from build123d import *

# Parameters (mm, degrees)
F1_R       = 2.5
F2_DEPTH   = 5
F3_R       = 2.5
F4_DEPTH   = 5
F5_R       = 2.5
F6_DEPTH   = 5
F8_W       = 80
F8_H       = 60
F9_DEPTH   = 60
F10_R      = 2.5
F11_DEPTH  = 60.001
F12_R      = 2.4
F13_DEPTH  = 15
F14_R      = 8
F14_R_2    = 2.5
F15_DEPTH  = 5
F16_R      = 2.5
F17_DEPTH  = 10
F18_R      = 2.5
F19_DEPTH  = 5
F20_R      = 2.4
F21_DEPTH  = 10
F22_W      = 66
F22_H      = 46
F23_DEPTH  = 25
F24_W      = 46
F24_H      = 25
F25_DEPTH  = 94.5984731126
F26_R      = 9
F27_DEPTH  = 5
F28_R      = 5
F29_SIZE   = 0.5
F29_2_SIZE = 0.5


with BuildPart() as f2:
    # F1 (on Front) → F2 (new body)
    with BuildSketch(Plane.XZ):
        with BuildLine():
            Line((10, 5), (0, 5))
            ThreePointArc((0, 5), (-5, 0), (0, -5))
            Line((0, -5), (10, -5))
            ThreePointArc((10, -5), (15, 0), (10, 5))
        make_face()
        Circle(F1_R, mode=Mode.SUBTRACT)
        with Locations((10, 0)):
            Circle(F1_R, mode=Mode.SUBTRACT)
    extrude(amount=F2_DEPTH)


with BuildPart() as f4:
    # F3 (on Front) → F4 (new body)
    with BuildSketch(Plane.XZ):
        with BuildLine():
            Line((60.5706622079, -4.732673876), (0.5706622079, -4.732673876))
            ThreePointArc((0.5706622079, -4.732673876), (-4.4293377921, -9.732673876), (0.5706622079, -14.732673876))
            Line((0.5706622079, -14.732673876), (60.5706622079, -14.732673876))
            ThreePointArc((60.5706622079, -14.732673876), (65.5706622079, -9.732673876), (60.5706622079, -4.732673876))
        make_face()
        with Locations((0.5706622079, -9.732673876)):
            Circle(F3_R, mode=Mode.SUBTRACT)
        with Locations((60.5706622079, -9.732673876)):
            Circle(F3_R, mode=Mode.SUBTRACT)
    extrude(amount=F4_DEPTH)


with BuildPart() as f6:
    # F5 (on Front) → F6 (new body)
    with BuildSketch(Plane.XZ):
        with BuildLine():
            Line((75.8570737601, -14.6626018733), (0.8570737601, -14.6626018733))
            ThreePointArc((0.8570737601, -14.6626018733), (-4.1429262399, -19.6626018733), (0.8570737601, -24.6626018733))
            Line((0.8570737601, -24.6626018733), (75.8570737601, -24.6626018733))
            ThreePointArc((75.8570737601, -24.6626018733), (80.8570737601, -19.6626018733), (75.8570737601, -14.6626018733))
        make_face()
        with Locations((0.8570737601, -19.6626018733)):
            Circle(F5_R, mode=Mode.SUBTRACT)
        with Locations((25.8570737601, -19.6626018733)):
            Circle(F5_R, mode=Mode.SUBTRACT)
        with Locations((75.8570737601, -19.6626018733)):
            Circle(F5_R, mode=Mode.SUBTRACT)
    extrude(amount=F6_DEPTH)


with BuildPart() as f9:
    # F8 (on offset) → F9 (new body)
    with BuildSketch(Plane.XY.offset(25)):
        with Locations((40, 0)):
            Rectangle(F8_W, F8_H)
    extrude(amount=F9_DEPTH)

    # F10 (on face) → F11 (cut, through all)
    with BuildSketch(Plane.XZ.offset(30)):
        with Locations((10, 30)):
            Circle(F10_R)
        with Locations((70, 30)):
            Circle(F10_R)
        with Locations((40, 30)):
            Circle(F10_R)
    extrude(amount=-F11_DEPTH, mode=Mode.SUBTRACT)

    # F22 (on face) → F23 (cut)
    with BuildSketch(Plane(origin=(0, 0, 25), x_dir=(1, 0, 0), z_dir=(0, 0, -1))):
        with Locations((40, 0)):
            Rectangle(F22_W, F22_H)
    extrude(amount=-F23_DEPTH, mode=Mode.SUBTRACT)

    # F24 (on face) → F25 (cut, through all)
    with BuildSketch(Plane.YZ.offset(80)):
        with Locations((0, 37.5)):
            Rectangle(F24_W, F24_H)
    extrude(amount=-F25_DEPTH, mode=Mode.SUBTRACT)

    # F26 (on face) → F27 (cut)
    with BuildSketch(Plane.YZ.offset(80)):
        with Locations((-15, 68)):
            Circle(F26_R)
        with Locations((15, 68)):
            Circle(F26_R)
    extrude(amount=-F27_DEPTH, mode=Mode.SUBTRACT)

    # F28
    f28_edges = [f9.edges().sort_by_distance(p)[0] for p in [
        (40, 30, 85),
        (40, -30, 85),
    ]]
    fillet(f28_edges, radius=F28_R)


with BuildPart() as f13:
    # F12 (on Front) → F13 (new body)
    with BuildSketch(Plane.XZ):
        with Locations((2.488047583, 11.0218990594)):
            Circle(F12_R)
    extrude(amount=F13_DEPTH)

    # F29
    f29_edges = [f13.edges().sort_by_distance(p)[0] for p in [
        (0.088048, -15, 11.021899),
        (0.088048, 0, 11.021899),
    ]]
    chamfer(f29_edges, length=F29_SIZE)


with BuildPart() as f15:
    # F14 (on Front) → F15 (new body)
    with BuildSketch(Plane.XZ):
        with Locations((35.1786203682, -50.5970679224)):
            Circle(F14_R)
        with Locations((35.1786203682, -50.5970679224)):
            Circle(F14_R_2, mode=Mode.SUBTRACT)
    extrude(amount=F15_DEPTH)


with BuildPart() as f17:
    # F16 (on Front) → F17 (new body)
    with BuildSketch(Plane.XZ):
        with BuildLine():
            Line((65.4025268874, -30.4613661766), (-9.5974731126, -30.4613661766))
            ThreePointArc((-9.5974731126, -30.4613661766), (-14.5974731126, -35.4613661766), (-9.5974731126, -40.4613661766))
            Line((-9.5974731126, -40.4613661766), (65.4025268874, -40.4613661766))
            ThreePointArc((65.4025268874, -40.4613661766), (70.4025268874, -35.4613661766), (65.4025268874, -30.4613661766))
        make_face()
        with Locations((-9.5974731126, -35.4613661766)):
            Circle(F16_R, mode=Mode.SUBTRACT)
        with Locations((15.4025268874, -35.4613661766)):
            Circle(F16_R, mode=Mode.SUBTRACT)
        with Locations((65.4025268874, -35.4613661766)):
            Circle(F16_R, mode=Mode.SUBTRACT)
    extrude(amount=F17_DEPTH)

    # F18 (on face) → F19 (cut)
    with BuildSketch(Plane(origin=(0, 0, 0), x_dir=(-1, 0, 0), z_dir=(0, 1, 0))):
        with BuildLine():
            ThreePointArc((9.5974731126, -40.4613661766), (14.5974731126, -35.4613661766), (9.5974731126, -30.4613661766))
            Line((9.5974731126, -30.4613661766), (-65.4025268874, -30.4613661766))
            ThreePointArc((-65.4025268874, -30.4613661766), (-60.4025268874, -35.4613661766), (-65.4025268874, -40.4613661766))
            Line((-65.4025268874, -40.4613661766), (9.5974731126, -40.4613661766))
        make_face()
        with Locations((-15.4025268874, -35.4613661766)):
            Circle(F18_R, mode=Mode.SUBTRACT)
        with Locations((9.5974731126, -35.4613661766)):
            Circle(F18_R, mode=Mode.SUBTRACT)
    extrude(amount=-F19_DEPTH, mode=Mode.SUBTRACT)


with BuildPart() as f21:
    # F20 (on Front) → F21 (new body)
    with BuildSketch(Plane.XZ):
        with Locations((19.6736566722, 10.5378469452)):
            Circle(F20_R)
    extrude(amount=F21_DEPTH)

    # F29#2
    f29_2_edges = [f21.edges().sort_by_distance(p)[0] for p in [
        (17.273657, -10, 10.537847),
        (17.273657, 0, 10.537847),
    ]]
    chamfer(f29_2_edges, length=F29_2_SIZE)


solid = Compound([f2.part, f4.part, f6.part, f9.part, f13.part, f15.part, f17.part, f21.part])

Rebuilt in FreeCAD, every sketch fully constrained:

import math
import FreeCAD as App
import Part
import Sketcher
from FreeCAD import Vector
Q = App.Units.Quantity


def edges_at(feature, points):
    """Names of the edges that pass closest to the given points."""
    edges = feature.Shape.Edges
    near = lambda p: min(range(len(edges)), key=lambda i: edges[i].distToShape(Part.Vertex(*p))[0])
    return sorted({f"Edge{near(p) + 1}" for p in points})

doc = App.newDocument("Part")
body = doc.addObject("PartDesign::Body", "Body")

# Sketch on XZ plane
sketch1 = body.newObject("Sketcher::SketchObject", "Sketch")
sketch1.AttachmentSupport = (doc.getObject("XZ_Plane"), [""])
sketch1.MapMode = "FlatFace"
sketch1.addGeometry([
    Part.LineSegment(Vector(10, 5, 0), Vector(0, 5, 0)),  # 0
    Part.ArcOfCircle(Part.Circle(Vector(0, 0, 0), Vector(0, 0, 1), 5), math.radians(90), math.radians(270)),  # 1
    Part.LineSegment(Vector(0, -5, 0), Vector(10, -5, 0)),  # 2
    Part.ArcOfCircle(Part.Circle(Vector(10, 0, 0), Vector(0, 0, 1), 5), math.radians(-90), math.radians(90)),  # 3
    Part.Circle(Vector(0, 0, 0), Vector(0, 0, 1), 2.5),  # 4
    Part.Circle(Vector(10, 0, 0), Vector(0, 0, 1), 2.5),  # 5
], False)
sketch1.addConstraint([
    Sketcher.Constraint("Tangent", 0, 2, 1, 1),
    Sketcher.Constraint("Tangent", 1, 2, 2, 1),
    Sketcher.Constraint("Tangent", 2, 2, 3, 1),
    Sketcher.Constraint("Tangent", 3, 2, 0, 1),
    Sketcher.Constraint("Horizontal", 0),
    Sketcher.Constraint("Horizontal", 2),
    Sketcher.Constraint("Coincident", 1, 3, -1, 1),
    Sketcher.Constraint("Coincident", 4, 3, -1, 1),
    Sketcher.Constraint("Coincident", 5, 3, 3, 3),
    Sketcher.Constraint("Equal", 4, 5),
    Sketcher.Constraint("Diameter", 4, Q("5 mm")),
    Sketcher.Constraint("Radius", 1, Q("5 mm")),
    Sketcher.Constraint("DistanceX", 0, 2, 0, 1, Q("10 mm")),
])
pad1 = body.newObject("PartDesign::Pad", "Pad")
pad1.Profile = sketch1
pad1.Length = 5
body2 = doc.addObject("PartDesign::Body", "Body001")

# Sketch on XZ plane
sketch2 = body2.newObject("Sketcher::SketchObject", "Sketch001")
sketch2.AttachmentSupport = (doc.getObject("XZ_Plane001"), [""])
sketch2.MapMode = "FlatFace"
sketch2.addGeometry([
    Part.LineSegment(Vector(60.6, -4.7, 0), Vector(0.6, -4.7, 0)),  # 0
    Part.ArcOfCircle(Part.Circle(Vector(0.6, -9.7, 0), Vector(0, 0, 1), 5), math.radians(90), math.radians(270)),  # 1
    Part.LineSegment(Vector(0.6, -14.7, 0), Vector(60.6, -14.7, 0)),  # 2
    Part.ArcOfCircle(Part.Circle(Vector(60.6, -9.7, 0), Vector(0, 0, 1), 5), math.radians(-90), math.radians(90)),  # 3
    Part.Circle(Vector(0.6, -9.7, 0), Vector(0, 0, 1), 2.5),  # 4
    Part.Circle(Vector(60.6, -9.7, 0), Vector(0, 0, 1), 2.5),  # 5
], False)
sketch2.addConstraint([
    Sketcher.Constraint("Tangent", 0, 2, 1, 1),
    Sketcher.Constraint("Tangent", 1, 2, 2, 1),
    Sketcher.Constraint("Tangent", 2, 2, 3, 1),
    Sketcher.Constraint("Tangent", 3, 2, 0, 1),
    Sketcher.Constraint("Horizontal", 0),
    Sketcher.Constraint("Horizontal", 2),
    Sketcher.Constraint("Coincident", 4, 3, 1, 3),
    Sketcher.Constraint("Coincident", 5, 3, 3, 3),
    Sketcher.Constraint("Equal", 4, 5),
    Sketcher.Constraint("Diameter", 4, Q("5 mm")),
    Sketcher.Constraint("Radius", 1, Q("5 mm")),
    Sketcher.Constraint("DistanceX", 0, 2, 0, 1, Q("60 mm")),
    Sketcher.Constraint("DistanceX", -1, 1, 1, 3, Q("0.570662 mm")),
    Sketcher.Constraint("DistanceY", 1, 3, -1, 1, Q("9.732674 mm")),
])
pad2 = body2.newObject("PartDesign::Pad", "Pad001")
pad2.Profile = sketch2
pad2.Length = 5
body3 = doc.addObject("PartDesign::Body", "Body002")

# Sketch on XZ plane
sketch3 = body3.newObject("Sketcher::SketchObject", "Sketch002")
sketch3.AttachmentSupport = (doc.getObject("XZ_Plane002"), [""])
sketch3.MapMode = "FlatFace"
sketch3.addGeometry([
    Part.LineSegment(Vector(75.9, -14.7, 0), Vector(0.9, -14.7, 0)),  # 0
    Part.ArcOfCircle(Part.Circle(Vector(0.9, -19.7, 0), Vector(0, 0, 1), 5), math.radians(90), math.radians(270)),  # 1
    Part.LineSegment(Vector(0.9, -24.7, 0), Vector(75.9, -24.7, 0)),  # 2
    Part.ArcOfCircle(Part.Circle(Vector(75.9, -19.7, 0), Vector(0, 0, 1), 5), math.radians(-90), math.radians(90)),  # 3
    Part.Circle(Vector(0.9, -19.7, 0), Vector(0, 0, 1), 2.5),  # 4
    Part.Circle(Vector(25.9, -19.7, 0), Vector(0, 0, 1), 2.5),  # 5
    Part.Circle(Vector(75.9, -19.7, 0), Vector(0, 0, 1), 2.5),  # 6
], False)
sketch3.addConstraint([
    Sketcher.Constraint("Tangent", 0, 2, 1, 1),
    Sketcher.Constraint("Tangent", 1, 2, 2, 1),
    Sketcher.Constraint("Tangent", 2, 2, 3, 1),
    Sketcher.Constraint("Tangent", 3, 2, 0, 1),
    Sketcher.Constraint("Horizontal", 0),
    Sketcher.Constraint("Horizontal", 2),
    Sketcher.Constraint("Coincident", 4, 3, 1, 3),
    Sketcher.Constraint("Coincident", 6, 3, 3, 3),
    Sketcher.Constraint("Equal", 4, 5),
    Sketcher.Constraint("Equal", 5, 6),
    Sketcher.Constraint("Horizontal", 4, 3, 5, 3),
    Sketcher.Constraint("Diameter", 4, Q("5 mm")),
    Sketcher.Constraint("Radius", 1, Q("5 mm")),
    Sketcher.Constraint("DistanceX", 0, 2, 0, 1, Q("75 mm")),
    Sketcher.Constraint("DistanceX", 1, 3, 5, 3, Q("25 mm")),
    Sketcher.Constraint("DistanceY", 1, 3, -1, 1, Q("19.662602 mm")),
    Sketcher.Constraint("DistanceX", -1, 1, 1, 3, Q("0.857074 mm")),
])
pad3 = body3.newObject("PartDesign::Pad", "Pad002")
pad3.Profile = sketch3
pad3.Length = 5
body4 = doc.addObject("PartDesign::Body", "Body003")

# Sketch on XY plane
sketch4 = body4.newObject("Sketcher::SketchObject", "Sketch003")
sketch4.AttachmentSupport = (doc.getObject("XY_Plane003"), [""])
sketch4.MapMode = "FlatFace"
sketch4.AttachmentOffset = App.Placement(Vector(0, 0, 25), App.Rotation())
sketch4.addGeometry([
    Part.LineSegment(Vector(0, 30, 0), Vector(0, -30, 0)),
    Part.LineSegment(Vector(0, -30, 0), Vector(80, -30, 0)),
    Part.LineSegment(Vector(80, -30, 0), Vector(80, 30, 0)),
    Part.LineSegment(Vector(80, 30, 0), Vector(0, 30, 0)),
], False)
sketch4.addConstraint([
    Sketcher.Constraint("Coincident", 0, 2, 1, 1),
    Sketcher.Constraint("Coincident", 1, 2, 2, 1),
    Sketcher.Constraint("Coincident", 2, 2, 3, 1),
    Sketcher.Constraint("Coincident", 3, 2, 0, 1),
    Sketcher.Constraint("Vertical", 0),
    Sketcher.Constraint("Horizontal", 1),
    Sketcher.Constraint("Vertical", 2),
    Sketcher.Constraint("Horizontal", 3),
    Sketcher.Constraint("Symmetric", 0, 2, 3, 2, -1, 1),
    Sketcher.Constraint("DistanceX", 1, 1, 1, 2, Q("80 mm")),
    Sketcher.Constraint("DistanceY", 0, 2, 0, 1, Q("60 mm")),
])
pad4 = body4.newObject("PartDesign::Pad", "Pad003")
pad4.Profile = sketch4
pad4.Length = 60

# Sketch on XZ plane
sketch5 = body4.newObject("Sketcher::SketchObject", "Sketch004")
sketch5.AttachmentSupport = (doc.getObject("XZ_Plane003"), [""])
sketch5.MapMode = "FlatFace"
sketch5.AttachmentOffset = App.Placement(Vector(0, 0, 30), App.Rotation())
sketch5.addGeometry([
    Part.Circle(Vector(10, 30, 0), Vector(0, 0, 1), 2.5),
    Part.Circle(Vector(70, 30, 0), Vector(0, 0, 1), 2.5),
    Part.Circle(Vector(40, 30, 0), Vector(0, 0, 1), 2.5),
], False)
sketch5.addConstraint([
    Sketcher.Constraint("Equal", 0, 1),
    Sketcher.Constraint("Equal", 1, 2),
    Sketcher.Constraint("Horizontal", 0, 3, 1, 3),
    Sketcher.Constraint("Horizontal", 1, 3, 2, 3),
    Sketcher.Constraint("Diameter", 0, Q("5 mm")),
    Sketcher.Constraint("DistanceX", -1, 1, 0, 3, Q("10 mm")),
    Sketcher.Constraint("DistanceY", -1, 1, 0, 3, Q("30 mm")),
    Sketcher.Constraint("DistanceX", -1, 1, 1, 3, Q("70 mm")),
    Sketcher.Constraint("DistanceX", -1, 1, 2, 3, Q("40 mm")),
])
pocket1 = body4.newObject("PartDesign::Pocket", "Pocket")
pocket1.Profile = sketch5
pocket1.Type = "ThroughAll"

# Sketch on XY plane
sketch6 = body4.newObject("Sketcher::SketchObject", "Sketch005")
sketch6.AttachmentSupport = (doc.getObject("XY_Plane003"), [""])
sketch6.MapMode = "FlatFace"
sketch6.AttachmentOffset = App.Placement(Vector(0, 0, 25), App.Rotation())
sketch6.addGeometry([
    Part.LineSegment(Vector(7, -23, 0), Vector(7, 23, 0)),
    Part.LineSegment(Vector(7, 23, 0), Vector(73, 23, 0)),
    Part.LineSegment(Vector(73, 23, 0), Vector(73, -23, 0)),
    Part.LineSegment(Vector(73, -23, 0), Vector(7, -23, 0)),
], False)
sketch6.addConstraint([
    Sketcher.Constraint("Coincident", 0, 2, 1, 1),
    Sketcher.Constraint("Coincident", 1, 2, 2, 1),
    Sketcher.Constraint("Coincident", 2, 2, 3, 1),
    Sketcher.Constraint("Coincident", 3, 2, 0, 1),
    Sketcher.Constraint("Vertical", 0),
    Sketcher.Constraint("Horizontal", 1),
    Sketcher.Constraint("Vertical", 2),
    Sketcher.Constraint("Horizontal", 3),
    Sketcher.Constraint("DistanceX", 1, 1, 1, 2, Q("66 mm")),
    Sketcher.Constraint("DistanceY", 0, 1, 0, 2, Q("46 mm")),
    Sketcher.Constraint("DistanceX", -1, 1, 0, 2, Q("7 mm")),
    Sketcher.Constraint("DistanceY", -1, 1, 0, 2, Q("23 mm")),
])
pocket2 = body4.newObject("PartDesign::Pocket", "Pocket001")
pocket2.Profile = sketch6
pocket2.Length = 25
pocket2.Reversed = True

# Sketch on YZ plane
sketch7 = body4.newObject("Sketcher::SketchObject", "Sketch006")
sketch7.AttachmentSupport = (doc.getObject("YZ_Plane003"), [""])
sketch7.MapMode = "FlatFace"
sketch7.AttachmentOffset = App.Placement(Vector(0, 0, 80), App.Rotation())
sketch7.addGeometry([
    Part.LineSegment(Vector(-23, 50, 0), Vector(-23, 25, 0)),
    Part.LineSegment(Vector(-23, 25, 0), Vector(23, 25, 0)),
    Part.LineSegment(Vector(23, 25, 0), Vector(23, 50, 0)),
    Part.LineSegment(Vector(23, 50, 0), Vector(-23, 50, 0)),
], False)
sketch7.addConstraint([
    Sketcher.Constraint("Coincident", 0, 2, 1, 1),
    Sketcher.Constraint("Coincident", 1, 2, 2, 1),
    Sketcher.Constraint("Coincident", 2, 2, 3, 1),
    Sketcher.Constraint("Coincident", 3, 2, 0, 1),
    Sketcher.Constraint("Vertical", 0),
    Sketcher.Constraint("Horizontal", 1),
    Sketcher.Constraint("Vertical", 2),
    Sketcher.Constraint("Horizontal", 3),
    Sketcher.Constraint("DistanceX", 1, 1, 1, 2, Q("46 mm")),
    Sketcher.Constraint("DistanceY", 0, 2, 0, 1, Q("25 mm")),
    Sketcher.Constraint("DistanceX", 0, 2, -1, 1, Q("23 mm")),
    Sketcher.Constraint("DistanceY", -1, 1, 0, 2, Q("25 mm")),
])
pocket3 = body4.newObject("PartDesign::Pocket", "Pocket002")
pocket3.Profile = sketch7
pocket3.Type = "ThroughAll"

# Sketch on YZ plane
sketch8 = body4.newObject("Sketcher::SketchObject", "Sketch007")
sketch8.AttachmentSupport = (doc.getObject("YZ_Plane003"), [""])
sketch8.MapMode = "FlatFace"
sketch8.AttachmentOffset = App.Placement(Vector(0, 0, 80), App.Rotation())
sketch8.addGeometry([
    Part.Circle(Vector(-15, 68, 0), Vector(0, 0, 1), 9),
    Part.Circle(Vector(15, 68, 0), Vector(0, 0, 1), 9),
], False)
sketch8.addConstraint([
    Sketcher.Constraint("Equal", 0, 1),
    Sketcher.Constraint("Symmetric", 0, 3, 1, 3, -2),
    Sketcher.Constraint("Diameter", 0, Q("18 mm")),
    Sketcher.Constraint("DistanceX", 0, 3, -1, 1, Q("15 mm")),
    Sketcher.Constraint("DistanceY", -1, 1, 0, 3, Q("68 mm")),
])
pocket4 = body4.newObject("PartDesign::Pocket", "Pocket003")
pocket4.Profile = sketch8
pocket4.Length = 5
doc.recompute()

fillet = body4.newObject("PartDesign::Fillet", "Fillet")
fillet.Base = (pocket4, edges_at(pocket4, [(40, 30, 85), (40, -30, 85)]))
fillet.Radius = 5
body5 = doc.addObject("PartDesign::Body", "Body004")

# Sketch on XZ plane
sketch9 = body5.newObject("Sketcher::SketchObject", "Sketch008")
sketch9.AttachmentSupport = (doc.getObject("XZ_Plane004"), [""])
sketch9.MapMode = "FlatFace"
sketch9.addGeometry(Part.Circle(Vector(2.5, 11, 0), Vector(0, 0, 1), 2.4), False)
sketch9.addConstraint([
    Sketcher.Constraint("Diameter", 0, Q("4.8 mm")),
    Sketcher.Constraint("DistanceY", -1, 1, 0, 3, Q("11.021899 mm")),
    Sketcher.Constraint("DistanceX", -1, 1, 0, 3, Q("2.488048 mm")),
])
pad5 = body5.newObject("PartDesign::Pad", "Pad004")
pad5.Profile = sketch9
pad5.Length = 15
doc.recompute()

chamfer = body5.newObject("PartDesign::Chamfer", "Chamfer")
chamfer.Base = (pad5, edges_at(pad5, [(0.088, -15, 11.022), (0.088, 0, 11.022)]))
chamfer.Size = 0.5
body6 = doc.addObject("PartDesign::Body", "Body005")

# Sketch on XZ plane
sketch10 = body6.newObject("Sketcher::SketchObject", "Sketch009")
sketch10.AttachmentSupport = (doc.getObject("XZ_Plane005"), [""])
sketch10.MapMode = "FlatFace"
sketch10.addGeometry([
    Part.Circle(Vector(35.2, -50.6, 0), Vector(0, 0, 1), 8),
    Part.Circle(Vector(35.2, -50.6, 0), Vector(0, 0, 1), 2.5),
], False)
sketch10.addConstraint([
    Sketcher.Constraint("Coincident", 1, 3, 0, 3),
    Sketcher.Constraint("Diameter", 0, Q("16 mm")),
    Sketcher.Constraint("Diameter", 1, Q("5 mm")),
    Sketcher.Constraint("DistanceX", -1, 1, 0, 3, Q("35.17862 mm")),
    Sketcher.Constraint("DistanceY", 0, 3, -1, 1, Q("50.597068 mm")),
])
pad6 = body6.newObject("PartDesign::Pad", "Pad005")
pad6.Profile = sketch10
pad6.Length = 5
body7 = doc.addObject("PartDesign::Body", "Body006")

# Sketch on XZ plane
sketch11 = body7.newObject("Sketcher::SketchObject", "Sketch010")
sketch11.AttachmentSupport = (doc.getObject("XZ_Plane006"), [""])
sketch11.MapMode = "FlatFace"
sketch11.addGeometry([
    Part.LineSegment(Vector(65.4, -30.5, 0), Vector(-9.6, -30.5, 0)),  # 0
    Part.ArcOfCircle(Part.Circle(Vector(-9.6, -35.5, 0), Vector(0, 0, 1), 5), math.radians(90), math.radians(270)),  # 1
    Part.LineSegment(Vector(-9.6, -40.5, 0), Vector(65.4, -40.5, 0)),  # 2
    Part.ArcOfCircle(Part.Circle(Vector(65.4, -35.5, 0), Vector(0, 0, 1), 5), math.radians(-90), math.radians(90)),  # 3
    Part.Circle(Vector(-9.6, -35.5, 0), Vector(0, 0, 1), 2.5),  # 4
    Part.Circle(Vector(15.4, -35.5, 0), Vector(0, 0, 1), 2.5),  # 5
    Part.Circle(Vector(65.4, -35.5, 0), Vector(0, 0, 1), 2.5),  # 6
], False)
sketch11.addConstraint([
    Sketcher.Constraint("Tangent", 0, 2, 1, 1),
    Sketcher.Constraint("Tangent", 1, 2, 2, 1),
    Sketcher.Constraint("Tangent", 2, 2, 3, 1),
    Sketcher.Constraint("Tangent", 3, 2, 0, 1),
    Sketcher.Constraint("Horizontal", 0),
    Sketcher.Constraint("Horizontal", 2),
    Sketcher.Constraint("Coincident", 4, 3, 1, 3),
    Sketcher.Constraint("Coincident", 6, 3, 3, 3),
    Sketcher.Constraint("Equal", 4, 5),
    Sketcher.Constraint("Equal", 5, 6),
    Sketcher.Constraint("Horizontal", 4, 3, 5, 3),
    Sketcher.Constraint("Diameter", 4, Q("5 mm")),
    Sketcher.Constraint("Radius", 1, Q("5 mm")),
    Sketcher.Constraint("DistanceX", 0, 2, 0, 1, Q("75 mm")),
    Sketcher.Constraint("DistanceX", 1, 3, 5, 3, Q("25 mm")),
    Sketcher.Constraint("DistanceX", 1, 3, -1, 1, Q("9.597473 mm")),
    Sketcher.Constraint("DistanceY", 1, 3, -1, 1, Q("35.461366 mm")),
])
pad7 = body7.newObject("PartDesign::Pad", "Pad006")
pad7.Profile = sketch11
pad7.Length = 10

# Sketch on XZ plane
sketch12 = body7.newObject("Sketcher::SketchObject", "Sketch011")
sketch12.AttachmentSupport = (doc.getObject("XZ_Plane006"), [""])
sketch12.MapMode = "FlatFace"
sketch12.addGeometry([
    Part.ArcOfCircle(Part.Circle(Vector(-9.6, -35.5, 0), Vector(0, 0, 1), 5), math.radians(90), math.radians(270)),  # 0
    Part.LineSegment(Vector(-9.6, -30.5, 0), Vector(65.4, -30.5, 0)),  # 1
    Part.ArcOfCircle(Part.Circle(Vector(65.4, -35.5, 0), Vector(0, 0, 1), 5), math.radians(90), math.radians(270)),  # 2
    Part.LineSegment(Vector(65.4, -40.5, 0), Vector(-9.6, -40.5, 0)),  # 3
    Part.Circle(Vector(15.4, -35.5, 0), Vector(0, 0, 1), 2.5),  # 4
    Part.Circle(Vector(-9.6, -35.5, 0), Vector(0, 0, 1), 2.5),  # 5
], False)
sketch12.addConstraint([
    Sketcher.Constraint("Tangent", 0, 1, 1, 1),
    Sketcher.Constraint("Tangent", 1, 2, 2, 1),
    Sketcher.Constraint("Tangent", 2, 2, 3, 1),
    Sketcher.Constraint("Tangent", 3, 2, 0, 2),
    Sketcher.Constraint("Horizontal", 1),
    Sketcher.Constraint("Horizontal", 3),
    Sketcher.Constraint("Coincident", 5, 3, 0, 3),
    Sketcher.Constraint("Equal", 4, 5),
    Sketcher.Constraint("Horizontal", 2, 3, 4, 3),
    Sketcher.Constraint("Diameter", 4, Q("5 mm")),
    Sketcher.Constraint("Radius", 0, Q("5 mm")),
    Sketcher.Constraint("DistanceX", 1, 1, 1, 2, Q("75 mm")),
    Sketcher.Constraint("DistanceX", 0, 3, 4, 3, Q("25 mm")),
    Sketcher.Constraint("DistanceX", 0, 3, -1, 1, Q("9.597473 mm")),
    Sketcher.Constraint("DistanceY", 0, 3, -1, 1, Q("35.461366 mm")),
])
pocket5 = body7.newObject("PartDesign::Pocket", "Pocket004")
pocket5.Profile = sketch12
pocket5.Length = 5
pocket5.Reversed = True
body8 = doc.addObject("PartDesign::Body", "Body007")

# Sketch on XZ plane
sketch13 = body8.newObject("Sketcher::SketchObject", "Sketch012")
sketch13.AttachmentSupport = (doc.getObject("XZ_Plane007"), [""])
sketch13.MapMode = "FlatFace"
sketch13.addGeometry(Part.Circle(Vector(19.7, 10.5, 0), Vector(0, 0, 1), 2.4), False)
sketch13.addConstraint([
    Sketcher.Constraint("Diameter", 0, Q("4.8 mm")),
    Sketcher.Constraint("DistanceX", -1, 1, 0, 3, Q("19.673657 mm")),
    Sketcher.Constraint("DistanceY", -1, 1, 0, 3, Q("10.537847 mm")),
])
pad8 = body8.newObject("PartDesign::Pad", "Pad007")
pad8.Profile = sketch13
pad8.Length = 10
doc.recompute()

chamfer2 = body8.newObject("PartDesign::Chamfer", "Chamfer001")
chamfer2.Base = (pad8, edges_at(pad8, [(17.274, -10, 10.538), (17.274, 0, 10.538)]))
chamfer2.Size = 0.5

doc.recompute()
